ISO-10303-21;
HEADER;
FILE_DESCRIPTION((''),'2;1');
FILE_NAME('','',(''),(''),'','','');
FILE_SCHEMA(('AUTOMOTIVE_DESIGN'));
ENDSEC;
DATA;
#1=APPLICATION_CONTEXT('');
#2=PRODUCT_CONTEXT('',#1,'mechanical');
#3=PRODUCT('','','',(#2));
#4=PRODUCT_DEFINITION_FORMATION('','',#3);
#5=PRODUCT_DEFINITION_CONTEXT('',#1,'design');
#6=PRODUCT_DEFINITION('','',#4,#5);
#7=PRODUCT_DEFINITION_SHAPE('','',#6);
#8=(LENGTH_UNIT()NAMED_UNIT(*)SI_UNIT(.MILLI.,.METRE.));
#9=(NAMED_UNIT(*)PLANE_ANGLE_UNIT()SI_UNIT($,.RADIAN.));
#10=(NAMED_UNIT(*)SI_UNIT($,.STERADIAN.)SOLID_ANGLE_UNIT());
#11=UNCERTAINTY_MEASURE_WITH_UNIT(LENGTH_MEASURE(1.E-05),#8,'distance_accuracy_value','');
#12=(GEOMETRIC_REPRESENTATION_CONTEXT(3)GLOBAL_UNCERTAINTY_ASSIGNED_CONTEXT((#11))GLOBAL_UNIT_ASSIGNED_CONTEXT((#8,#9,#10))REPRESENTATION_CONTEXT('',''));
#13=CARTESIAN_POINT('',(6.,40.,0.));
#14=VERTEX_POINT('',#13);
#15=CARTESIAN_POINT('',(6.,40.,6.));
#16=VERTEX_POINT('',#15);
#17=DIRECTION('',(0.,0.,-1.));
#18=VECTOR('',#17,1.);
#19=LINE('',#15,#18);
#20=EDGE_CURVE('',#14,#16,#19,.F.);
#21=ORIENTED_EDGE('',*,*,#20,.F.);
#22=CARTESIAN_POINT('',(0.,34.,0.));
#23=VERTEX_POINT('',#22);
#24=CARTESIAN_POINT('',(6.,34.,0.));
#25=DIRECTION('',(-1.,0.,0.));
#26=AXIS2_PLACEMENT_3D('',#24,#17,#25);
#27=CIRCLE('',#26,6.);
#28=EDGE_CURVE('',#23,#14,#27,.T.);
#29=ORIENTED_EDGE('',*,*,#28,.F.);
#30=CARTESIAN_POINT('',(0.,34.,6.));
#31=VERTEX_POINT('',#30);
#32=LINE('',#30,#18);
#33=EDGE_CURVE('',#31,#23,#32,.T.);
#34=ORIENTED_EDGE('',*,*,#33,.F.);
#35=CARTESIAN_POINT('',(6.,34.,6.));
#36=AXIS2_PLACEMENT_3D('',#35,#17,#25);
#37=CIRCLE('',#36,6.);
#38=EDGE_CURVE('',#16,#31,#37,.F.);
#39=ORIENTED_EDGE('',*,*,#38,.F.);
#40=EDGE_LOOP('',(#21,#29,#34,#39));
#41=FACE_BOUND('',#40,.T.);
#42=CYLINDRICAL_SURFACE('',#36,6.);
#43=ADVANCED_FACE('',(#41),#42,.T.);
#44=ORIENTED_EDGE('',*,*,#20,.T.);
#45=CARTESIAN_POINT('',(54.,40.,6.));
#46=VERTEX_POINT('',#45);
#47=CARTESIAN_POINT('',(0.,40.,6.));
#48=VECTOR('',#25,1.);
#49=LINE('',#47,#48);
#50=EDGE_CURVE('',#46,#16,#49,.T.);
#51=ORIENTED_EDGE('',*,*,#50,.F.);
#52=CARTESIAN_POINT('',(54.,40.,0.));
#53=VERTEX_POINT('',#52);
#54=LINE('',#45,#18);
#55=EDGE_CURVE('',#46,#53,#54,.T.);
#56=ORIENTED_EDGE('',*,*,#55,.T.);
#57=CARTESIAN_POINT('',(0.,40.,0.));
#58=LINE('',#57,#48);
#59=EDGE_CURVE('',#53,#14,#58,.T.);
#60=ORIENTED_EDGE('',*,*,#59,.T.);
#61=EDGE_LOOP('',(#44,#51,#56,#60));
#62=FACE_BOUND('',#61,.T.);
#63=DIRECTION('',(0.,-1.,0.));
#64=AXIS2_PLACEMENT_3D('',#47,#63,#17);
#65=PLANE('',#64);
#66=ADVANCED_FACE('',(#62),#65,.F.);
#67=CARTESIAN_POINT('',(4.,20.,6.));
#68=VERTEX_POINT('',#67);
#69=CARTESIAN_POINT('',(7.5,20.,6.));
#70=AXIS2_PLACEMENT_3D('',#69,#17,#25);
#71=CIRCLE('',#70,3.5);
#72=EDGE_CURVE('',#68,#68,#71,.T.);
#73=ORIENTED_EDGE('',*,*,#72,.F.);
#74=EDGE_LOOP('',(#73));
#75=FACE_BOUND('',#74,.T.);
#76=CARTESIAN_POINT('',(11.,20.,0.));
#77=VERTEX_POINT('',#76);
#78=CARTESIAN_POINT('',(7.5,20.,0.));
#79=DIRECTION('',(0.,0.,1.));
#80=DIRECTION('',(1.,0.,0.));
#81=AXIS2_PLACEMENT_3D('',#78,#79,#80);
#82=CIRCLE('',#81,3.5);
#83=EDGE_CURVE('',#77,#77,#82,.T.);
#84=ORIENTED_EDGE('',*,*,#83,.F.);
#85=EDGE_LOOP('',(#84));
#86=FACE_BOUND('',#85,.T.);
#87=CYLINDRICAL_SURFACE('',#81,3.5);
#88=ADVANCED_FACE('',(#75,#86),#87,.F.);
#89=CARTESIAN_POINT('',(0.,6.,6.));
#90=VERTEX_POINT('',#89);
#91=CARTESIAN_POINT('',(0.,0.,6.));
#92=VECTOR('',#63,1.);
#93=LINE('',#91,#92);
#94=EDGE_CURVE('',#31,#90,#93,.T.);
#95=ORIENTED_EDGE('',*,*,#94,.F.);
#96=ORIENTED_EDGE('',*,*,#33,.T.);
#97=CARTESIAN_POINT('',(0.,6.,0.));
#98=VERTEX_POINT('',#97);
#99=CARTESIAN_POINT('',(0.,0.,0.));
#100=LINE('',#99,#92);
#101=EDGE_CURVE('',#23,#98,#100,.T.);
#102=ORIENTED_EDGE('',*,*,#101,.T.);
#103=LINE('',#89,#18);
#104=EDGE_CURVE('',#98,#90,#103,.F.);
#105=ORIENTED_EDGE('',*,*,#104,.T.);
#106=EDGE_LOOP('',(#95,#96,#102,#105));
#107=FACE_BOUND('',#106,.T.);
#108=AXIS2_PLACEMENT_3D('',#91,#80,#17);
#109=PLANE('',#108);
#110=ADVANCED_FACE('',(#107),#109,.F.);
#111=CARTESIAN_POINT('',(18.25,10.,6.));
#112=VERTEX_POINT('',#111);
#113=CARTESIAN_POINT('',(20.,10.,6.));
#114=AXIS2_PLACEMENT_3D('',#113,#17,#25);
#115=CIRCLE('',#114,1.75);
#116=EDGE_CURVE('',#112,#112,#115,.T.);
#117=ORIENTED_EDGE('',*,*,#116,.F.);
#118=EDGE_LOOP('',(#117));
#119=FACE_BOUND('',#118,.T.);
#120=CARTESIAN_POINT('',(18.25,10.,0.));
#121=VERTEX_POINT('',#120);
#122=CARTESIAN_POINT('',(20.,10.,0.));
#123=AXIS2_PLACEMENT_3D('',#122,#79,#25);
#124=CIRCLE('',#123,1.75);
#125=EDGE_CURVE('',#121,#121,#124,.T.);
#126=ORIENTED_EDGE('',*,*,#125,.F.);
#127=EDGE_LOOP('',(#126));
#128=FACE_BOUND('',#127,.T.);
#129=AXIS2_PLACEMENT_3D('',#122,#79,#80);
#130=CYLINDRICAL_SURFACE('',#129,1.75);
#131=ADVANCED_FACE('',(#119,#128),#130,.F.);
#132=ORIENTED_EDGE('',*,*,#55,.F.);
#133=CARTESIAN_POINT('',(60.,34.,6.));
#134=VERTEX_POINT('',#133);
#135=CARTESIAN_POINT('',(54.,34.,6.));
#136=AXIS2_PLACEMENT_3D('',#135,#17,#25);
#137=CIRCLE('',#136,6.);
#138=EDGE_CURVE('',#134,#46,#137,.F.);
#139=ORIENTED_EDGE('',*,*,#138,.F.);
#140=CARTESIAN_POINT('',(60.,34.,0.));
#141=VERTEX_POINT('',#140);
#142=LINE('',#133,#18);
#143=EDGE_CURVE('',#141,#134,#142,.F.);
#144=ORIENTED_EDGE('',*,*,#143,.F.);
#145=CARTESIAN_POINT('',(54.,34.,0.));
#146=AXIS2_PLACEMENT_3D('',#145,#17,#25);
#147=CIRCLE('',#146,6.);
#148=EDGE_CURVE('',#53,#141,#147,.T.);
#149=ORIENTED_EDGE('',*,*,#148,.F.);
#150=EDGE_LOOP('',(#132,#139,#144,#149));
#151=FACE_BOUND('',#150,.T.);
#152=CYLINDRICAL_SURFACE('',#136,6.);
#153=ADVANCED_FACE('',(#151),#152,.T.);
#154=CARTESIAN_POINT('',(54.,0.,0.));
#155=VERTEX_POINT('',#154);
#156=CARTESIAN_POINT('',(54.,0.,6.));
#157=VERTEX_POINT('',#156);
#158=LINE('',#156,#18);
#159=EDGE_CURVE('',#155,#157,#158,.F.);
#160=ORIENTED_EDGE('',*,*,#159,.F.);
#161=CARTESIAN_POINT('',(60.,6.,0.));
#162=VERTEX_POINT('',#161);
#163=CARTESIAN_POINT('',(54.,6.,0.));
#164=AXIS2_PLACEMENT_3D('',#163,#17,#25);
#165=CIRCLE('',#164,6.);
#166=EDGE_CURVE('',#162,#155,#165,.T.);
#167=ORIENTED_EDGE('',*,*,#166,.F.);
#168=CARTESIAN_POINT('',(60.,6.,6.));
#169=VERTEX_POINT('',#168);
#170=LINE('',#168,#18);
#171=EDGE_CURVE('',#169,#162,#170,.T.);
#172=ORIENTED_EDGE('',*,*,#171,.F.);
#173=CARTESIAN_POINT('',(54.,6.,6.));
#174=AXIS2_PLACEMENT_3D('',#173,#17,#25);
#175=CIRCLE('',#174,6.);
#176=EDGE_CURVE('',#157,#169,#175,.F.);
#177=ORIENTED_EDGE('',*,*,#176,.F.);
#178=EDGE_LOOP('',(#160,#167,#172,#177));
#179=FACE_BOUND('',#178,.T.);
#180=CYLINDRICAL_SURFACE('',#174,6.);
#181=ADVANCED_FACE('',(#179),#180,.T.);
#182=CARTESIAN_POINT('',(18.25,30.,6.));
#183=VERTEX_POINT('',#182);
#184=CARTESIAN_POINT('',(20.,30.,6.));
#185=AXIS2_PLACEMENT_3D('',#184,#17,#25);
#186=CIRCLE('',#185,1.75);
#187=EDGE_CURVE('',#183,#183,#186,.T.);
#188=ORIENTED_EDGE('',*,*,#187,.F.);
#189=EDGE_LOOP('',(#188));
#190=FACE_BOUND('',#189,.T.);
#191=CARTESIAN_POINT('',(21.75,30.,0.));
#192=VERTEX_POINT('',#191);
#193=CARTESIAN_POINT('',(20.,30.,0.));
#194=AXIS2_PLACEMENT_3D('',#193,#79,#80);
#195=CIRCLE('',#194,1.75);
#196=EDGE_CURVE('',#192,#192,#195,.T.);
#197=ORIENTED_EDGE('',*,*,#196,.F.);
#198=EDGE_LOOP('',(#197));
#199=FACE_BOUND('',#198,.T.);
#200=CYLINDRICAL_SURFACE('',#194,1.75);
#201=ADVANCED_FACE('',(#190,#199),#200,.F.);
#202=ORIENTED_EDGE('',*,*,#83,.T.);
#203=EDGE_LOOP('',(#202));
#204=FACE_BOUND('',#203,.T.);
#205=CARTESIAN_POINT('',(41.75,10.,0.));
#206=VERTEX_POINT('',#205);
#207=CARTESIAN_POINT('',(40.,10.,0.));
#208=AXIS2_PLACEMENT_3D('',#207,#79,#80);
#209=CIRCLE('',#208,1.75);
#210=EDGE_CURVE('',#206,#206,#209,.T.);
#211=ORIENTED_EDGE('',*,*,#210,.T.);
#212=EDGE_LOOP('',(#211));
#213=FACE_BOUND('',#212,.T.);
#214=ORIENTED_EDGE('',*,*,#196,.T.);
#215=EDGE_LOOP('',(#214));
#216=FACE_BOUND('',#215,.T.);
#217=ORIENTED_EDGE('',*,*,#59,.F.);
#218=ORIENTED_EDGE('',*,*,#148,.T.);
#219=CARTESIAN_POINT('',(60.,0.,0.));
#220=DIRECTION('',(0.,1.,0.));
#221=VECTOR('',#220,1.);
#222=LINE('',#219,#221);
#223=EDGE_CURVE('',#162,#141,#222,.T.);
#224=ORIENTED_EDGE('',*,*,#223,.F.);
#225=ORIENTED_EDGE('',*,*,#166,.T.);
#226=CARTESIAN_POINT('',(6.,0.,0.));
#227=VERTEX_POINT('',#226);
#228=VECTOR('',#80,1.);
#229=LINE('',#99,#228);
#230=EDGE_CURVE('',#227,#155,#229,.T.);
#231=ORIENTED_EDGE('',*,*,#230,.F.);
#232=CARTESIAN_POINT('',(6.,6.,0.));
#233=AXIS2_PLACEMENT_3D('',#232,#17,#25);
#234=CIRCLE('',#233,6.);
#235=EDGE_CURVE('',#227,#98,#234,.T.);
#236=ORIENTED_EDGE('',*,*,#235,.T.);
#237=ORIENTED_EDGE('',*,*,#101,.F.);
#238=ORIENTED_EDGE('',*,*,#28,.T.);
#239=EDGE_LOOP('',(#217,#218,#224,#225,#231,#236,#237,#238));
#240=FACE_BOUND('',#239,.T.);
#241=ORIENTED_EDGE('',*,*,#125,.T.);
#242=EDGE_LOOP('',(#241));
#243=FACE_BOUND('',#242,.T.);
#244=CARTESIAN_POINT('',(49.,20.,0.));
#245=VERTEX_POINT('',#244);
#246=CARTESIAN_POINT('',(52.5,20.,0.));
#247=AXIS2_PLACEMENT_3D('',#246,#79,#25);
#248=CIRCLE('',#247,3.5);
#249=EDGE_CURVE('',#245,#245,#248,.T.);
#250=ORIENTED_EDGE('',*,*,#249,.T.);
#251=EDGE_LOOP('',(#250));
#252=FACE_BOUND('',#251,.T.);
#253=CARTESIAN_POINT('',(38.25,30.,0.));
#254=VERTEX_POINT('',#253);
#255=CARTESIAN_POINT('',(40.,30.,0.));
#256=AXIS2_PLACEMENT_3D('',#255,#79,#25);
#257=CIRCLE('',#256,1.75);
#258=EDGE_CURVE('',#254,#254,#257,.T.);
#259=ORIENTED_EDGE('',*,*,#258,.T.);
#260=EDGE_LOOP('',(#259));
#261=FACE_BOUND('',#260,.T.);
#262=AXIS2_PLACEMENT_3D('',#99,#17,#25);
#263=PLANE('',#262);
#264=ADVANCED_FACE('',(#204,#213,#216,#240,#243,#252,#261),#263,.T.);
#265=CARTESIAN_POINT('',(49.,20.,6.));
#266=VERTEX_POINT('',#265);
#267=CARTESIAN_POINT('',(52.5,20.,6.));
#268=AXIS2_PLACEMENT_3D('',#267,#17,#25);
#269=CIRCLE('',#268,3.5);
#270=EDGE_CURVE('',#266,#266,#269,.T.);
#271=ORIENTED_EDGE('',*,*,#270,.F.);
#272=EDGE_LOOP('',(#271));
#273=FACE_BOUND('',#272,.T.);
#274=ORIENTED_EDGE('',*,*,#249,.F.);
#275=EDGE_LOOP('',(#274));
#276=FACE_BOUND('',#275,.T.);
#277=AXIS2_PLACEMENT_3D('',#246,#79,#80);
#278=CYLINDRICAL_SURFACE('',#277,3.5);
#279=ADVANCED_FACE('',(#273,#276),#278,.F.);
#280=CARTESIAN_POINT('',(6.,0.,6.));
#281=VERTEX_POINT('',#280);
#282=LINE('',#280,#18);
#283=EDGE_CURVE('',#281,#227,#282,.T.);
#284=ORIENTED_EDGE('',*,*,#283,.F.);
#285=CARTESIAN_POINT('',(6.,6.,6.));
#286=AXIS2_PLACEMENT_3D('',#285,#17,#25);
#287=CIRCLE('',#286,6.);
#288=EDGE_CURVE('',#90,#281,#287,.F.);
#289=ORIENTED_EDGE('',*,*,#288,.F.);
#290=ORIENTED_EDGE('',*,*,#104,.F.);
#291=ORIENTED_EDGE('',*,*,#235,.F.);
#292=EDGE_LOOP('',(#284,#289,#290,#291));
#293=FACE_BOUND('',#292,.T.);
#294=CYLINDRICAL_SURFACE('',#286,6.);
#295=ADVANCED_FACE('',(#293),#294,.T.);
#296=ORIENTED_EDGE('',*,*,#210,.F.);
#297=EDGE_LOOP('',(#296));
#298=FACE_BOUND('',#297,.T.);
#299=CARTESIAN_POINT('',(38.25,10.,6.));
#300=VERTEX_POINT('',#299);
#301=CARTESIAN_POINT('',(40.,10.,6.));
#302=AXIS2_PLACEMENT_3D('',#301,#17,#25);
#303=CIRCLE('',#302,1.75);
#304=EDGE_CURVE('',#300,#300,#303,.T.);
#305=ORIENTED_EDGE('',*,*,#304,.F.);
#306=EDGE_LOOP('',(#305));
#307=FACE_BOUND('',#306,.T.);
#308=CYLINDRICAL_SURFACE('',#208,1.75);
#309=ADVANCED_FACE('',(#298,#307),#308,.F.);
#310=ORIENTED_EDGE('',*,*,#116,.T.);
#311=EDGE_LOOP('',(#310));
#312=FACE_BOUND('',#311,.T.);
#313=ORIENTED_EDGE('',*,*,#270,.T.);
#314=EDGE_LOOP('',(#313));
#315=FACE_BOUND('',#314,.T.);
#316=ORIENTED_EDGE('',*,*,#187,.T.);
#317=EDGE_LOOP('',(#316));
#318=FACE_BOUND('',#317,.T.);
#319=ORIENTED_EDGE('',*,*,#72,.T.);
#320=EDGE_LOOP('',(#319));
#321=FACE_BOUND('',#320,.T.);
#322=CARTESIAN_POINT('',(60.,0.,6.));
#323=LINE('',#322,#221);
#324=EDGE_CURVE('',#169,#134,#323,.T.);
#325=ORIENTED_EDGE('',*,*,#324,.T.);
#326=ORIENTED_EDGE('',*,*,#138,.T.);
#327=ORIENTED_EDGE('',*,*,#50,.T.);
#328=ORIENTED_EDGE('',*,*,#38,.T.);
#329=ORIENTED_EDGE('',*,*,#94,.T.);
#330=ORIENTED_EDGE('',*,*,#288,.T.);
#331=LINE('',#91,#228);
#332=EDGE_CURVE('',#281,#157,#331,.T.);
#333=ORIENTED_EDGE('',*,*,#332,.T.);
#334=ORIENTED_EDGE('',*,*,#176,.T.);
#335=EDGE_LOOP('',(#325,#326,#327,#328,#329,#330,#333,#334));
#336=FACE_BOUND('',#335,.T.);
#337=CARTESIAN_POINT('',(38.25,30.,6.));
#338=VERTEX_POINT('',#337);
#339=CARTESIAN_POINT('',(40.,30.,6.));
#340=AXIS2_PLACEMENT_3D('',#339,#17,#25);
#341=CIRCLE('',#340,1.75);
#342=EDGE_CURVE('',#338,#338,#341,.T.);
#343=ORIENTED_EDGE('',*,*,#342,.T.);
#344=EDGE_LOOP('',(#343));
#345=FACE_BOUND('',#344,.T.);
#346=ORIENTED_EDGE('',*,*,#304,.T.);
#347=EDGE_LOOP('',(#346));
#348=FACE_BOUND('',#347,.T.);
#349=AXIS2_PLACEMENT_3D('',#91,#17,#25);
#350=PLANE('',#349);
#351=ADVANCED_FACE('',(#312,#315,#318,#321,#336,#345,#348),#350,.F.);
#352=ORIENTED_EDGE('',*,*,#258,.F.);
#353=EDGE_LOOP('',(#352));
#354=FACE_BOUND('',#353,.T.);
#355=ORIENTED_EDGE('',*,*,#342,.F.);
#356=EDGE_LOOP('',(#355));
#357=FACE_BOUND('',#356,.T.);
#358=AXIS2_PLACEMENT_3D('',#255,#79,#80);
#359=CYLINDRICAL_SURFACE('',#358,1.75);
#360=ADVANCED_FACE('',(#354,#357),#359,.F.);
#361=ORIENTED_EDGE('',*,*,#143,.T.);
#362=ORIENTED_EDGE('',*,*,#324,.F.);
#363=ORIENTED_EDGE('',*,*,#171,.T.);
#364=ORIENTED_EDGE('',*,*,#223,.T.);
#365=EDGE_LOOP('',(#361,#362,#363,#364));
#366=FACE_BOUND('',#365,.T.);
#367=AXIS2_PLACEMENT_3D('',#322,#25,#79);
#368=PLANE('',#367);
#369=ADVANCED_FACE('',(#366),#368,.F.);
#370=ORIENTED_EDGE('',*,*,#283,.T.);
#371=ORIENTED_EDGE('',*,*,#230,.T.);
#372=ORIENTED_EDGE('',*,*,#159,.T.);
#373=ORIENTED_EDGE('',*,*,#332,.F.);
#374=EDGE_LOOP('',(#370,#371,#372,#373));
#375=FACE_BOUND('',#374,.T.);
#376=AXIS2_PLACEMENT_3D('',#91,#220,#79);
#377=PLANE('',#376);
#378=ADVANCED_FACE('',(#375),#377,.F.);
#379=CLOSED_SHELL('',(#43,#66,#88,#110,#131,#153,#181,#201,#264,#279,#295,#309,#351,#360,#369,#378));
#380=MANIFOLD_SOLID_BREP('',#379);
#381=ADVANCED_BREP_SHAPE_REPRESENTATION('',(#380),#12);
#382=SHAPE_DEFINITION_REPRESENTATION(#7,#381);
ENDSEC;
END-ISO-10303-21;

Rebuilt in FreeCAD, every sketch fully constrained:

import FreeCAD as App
import Part
import Sketcher

V = App.Vector
Q = App.Units.Quantity


def edges_at(feature, points):
    """Names of the edges that pass closest to the given points."""
    edges = feature.Shape.Edges
    near = lambda p: min(range(len(edges)), key=lambda i: edges[i].distToShape(Part.Vertex(*p))[0])
    return sorted({f"Edge{near(p) + 1}" for p in points})


def add_polygon(sketch, points):
    """Adds a closed chain of lines whose ends are joined by coincident constraints."""
    first, n = sketch.GeometryCount, len(points)
    for a, b in zip(points, points[1:] + points[:1]):
        sketch.addGeometry(Part.LineSegment(App.Vector(*a, 0), App.Vector(*b, 0)), False)
    for i in range(n):
        sketch.addConstraint(Sketcher.Constraint("Coincident", first + i, 2, first + (i + 1) % n, 1))

doc = App.newDocument("Part")
body = doc.addObject("PartDesign::Body", "Body")

sketch1 = body.newObject("Sketcher::SketchObject", "Sketch")
sketch1.AttachmentSupport = (doc.getObject("XY_Plane"), [""])
sketch1.MapMode = "FlatFace"
add_polygon(sketch1, [(0, 40), (0, 0), (60, 0), (60, 40)])
sketch1.addConstraint([
    Sketcher.Constraint("Vertical", 0),
    Sketcher.Constraint("Horizontal", 1),
    Sketcher.Constraint("Vertical", 2),
    Sketcher.Constraint("Horizontal", 3),
    Sketcher.Constraint("Coincident", 0, 2, -1, 1),
    Sketcher.Constraint("DistanceX", 1, 1, 1, 2, Q("60 mm")),
    Sketcher.Constraint("DistanceY", 0, 2, 0, 1, Q("40 mm")),
])
pad1 = body.newObject("PartDesign::Pad", "Pad")
pad1.Profile = sketch1
pad1.Length = 6

sketch2 = body.newObject("Sketcher::SketchObject", "Sketch001")
sketch2.AttachmentSupport = (doc.getObject("XY_Plane"), [""])
sketch2.MapMode = "FlatFace"
sketch2.AttachmentOffset = App.Placement(V(0, 0, 6), App.Rotation())
sketch2.addGeometry([
    Part.Circle(V(20, 30, 0), V(0, 0, 1), 1.75),
    Part.Circle(V(40, 30, 0), V(0, 0, 1), 1.75),
    Part.Circle(V(40, 10, 0), V(0, 0, 1), 1.75),
    Part.Circle(V(20, 10, 0), V(0, 0, 1), 1.75),
    Part.Circle(V(7.5, 20, 0), V(0, 0, 1), 3.5),
    Part.Circle(V(52.5, 20, 0), V(0, 0, 1), 3.5),
], False)
sketch2.addConstraint([
    Sketcher.Constraint("Equal", 0, 1),
    Sketcher.Constraint("Equal", 1, 2),
    Sketcher.Constraint("Equal", 2, 3),
    Sketcher.Constraint("Equal", 4, 5),
    Sketcher.Constraint("Horizontal", 0, 3, 1, 3),
    Sketcher.Constraint("Horizontal", 2, 3, 3, 3),
    Sketcher.Constraint("Horizontal", 4, 3, 5, 3),
    Sketcher.Constraint("Vertical", 1, 3, 2, 3),
    Sketcher.Constraint("Vertical", 0, 3, 3, 3),
    Sketcher.Constraint("Diameter", 4, Q("7 mm")),
    Sketcher.Constraint("Diameter", 0, Q("3.5 mm")),
    Sketcher.Constraint("DistanceX", -1, 1, 0, 3, Q("20 mm")),
    Sketcher.Constraint("DistanceY", -1, 1, 0, 3, Q("30 mm")),
    Sketcher.Constraint("DistanceX", -1, 1, 1, 3, Q("40 mm")),
    Sketcher.Constraint("DistanceY", -1, 1, 2, 3, Q("10 mm")),
    Sketcher.Constraint("DistanceY", -1, 1, 4, 3, Q("20 mm")),
    Sketcher.Constraint("DistanceX", 4, 3, 5, 3, Q("45 mm")),
    Sketcher.Constraint("DistanceX", -1, 1, 4, 3, Q("7.5 mm")),
])
pocket1 = body.newObject("PartDesign::Pocket", "Pocket")
pocket1.Profile = sketch2
pocket1.Type = "ThroughAll"
pocket1.Midplane = True
doc.recompute()

fillet = body.newObject("PartDesign::Fillet", "Fillet")
fillet.Base = (pocket1, edges_at(pocket1, [
    (0, 40, 3),
    (60, 40, 3),
    (60, 0, 3),
    (0, 0, 3),
]))
fillet.Radius = 6

doc.recompute()
